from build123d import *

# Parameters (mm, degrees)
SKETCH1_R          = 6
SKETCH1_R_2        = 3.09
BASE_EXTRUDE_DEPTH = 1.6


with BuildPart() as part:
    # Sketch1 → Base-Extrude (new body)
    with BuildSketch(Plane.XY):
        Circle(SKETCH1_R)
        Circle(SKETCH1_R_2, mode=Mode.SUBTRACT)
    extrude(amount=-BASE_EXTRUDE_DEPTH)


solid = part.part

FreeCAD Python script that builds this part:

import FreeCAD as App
import Part
import Sketcher
Q = App.Units.Quantity

doc = App.newDocument("Part")
params = doc.addObject("Spreadsheet::Sheet", "Params")
for row, (alias, value) in enumerate([
    ("sketch1_diameter", "12 mm"),
    ("sketch1_diameter2", "6.18 mm"),
    ("pad1_length", "1.6 mm"),
], start=1):
    params.set(f"A{row}", alias)
    params.set(f"B{row}", "=" + value)
    params.setAlias(f"B{row}", alias)

body = doc.addObject("PartDesign::Body", "Body")

# Sketch on XY plane
sketch1 = body.newObject("Sketcher::SketchObject", "Sketch")
sketch1.AttachmentSupport = (doc.getObject("XY_Plane"), [""])
sketch1.MapMode = "FlatFace"
sketch1.addGeometry(Part.Circle(App.Vector(0, 0, 0), App.Vector(0, 0, 1), 6), False)
sketch1.addGeometry(Part.Circle(App.Vector(0, 0, 0), App.Vector(0, 0, 1), 3.09), False)
sketch1.addConstraint(Sketcher.Constraint("Coincident", 0, 3, -1, 1))
sketch1.addConstraint(Sketcher.Constraint("Coincident", 1, 3, -1, 1))
sketch1.addConstraint(Sketcher.Constraint("Diameter", 0, Q("12 mm")))
sketch1.addConstraint(Sketcher.Constraint("Diameter", 1, Q("6.18 mm")))
sketch1.setExpression("Constraints[2]", "Params.sketch1_diameter")
sketch1.setExpression("Constraints[3]", "Params.sketch1_diameter2")
pad1 = body.newObject("PartDesign::Pad", "Pad")
pad1.Profile = sketch1
pad1.setExpression("Length", "Params.pad1_length")
pad1.Reversed = True

doc.recompute()
